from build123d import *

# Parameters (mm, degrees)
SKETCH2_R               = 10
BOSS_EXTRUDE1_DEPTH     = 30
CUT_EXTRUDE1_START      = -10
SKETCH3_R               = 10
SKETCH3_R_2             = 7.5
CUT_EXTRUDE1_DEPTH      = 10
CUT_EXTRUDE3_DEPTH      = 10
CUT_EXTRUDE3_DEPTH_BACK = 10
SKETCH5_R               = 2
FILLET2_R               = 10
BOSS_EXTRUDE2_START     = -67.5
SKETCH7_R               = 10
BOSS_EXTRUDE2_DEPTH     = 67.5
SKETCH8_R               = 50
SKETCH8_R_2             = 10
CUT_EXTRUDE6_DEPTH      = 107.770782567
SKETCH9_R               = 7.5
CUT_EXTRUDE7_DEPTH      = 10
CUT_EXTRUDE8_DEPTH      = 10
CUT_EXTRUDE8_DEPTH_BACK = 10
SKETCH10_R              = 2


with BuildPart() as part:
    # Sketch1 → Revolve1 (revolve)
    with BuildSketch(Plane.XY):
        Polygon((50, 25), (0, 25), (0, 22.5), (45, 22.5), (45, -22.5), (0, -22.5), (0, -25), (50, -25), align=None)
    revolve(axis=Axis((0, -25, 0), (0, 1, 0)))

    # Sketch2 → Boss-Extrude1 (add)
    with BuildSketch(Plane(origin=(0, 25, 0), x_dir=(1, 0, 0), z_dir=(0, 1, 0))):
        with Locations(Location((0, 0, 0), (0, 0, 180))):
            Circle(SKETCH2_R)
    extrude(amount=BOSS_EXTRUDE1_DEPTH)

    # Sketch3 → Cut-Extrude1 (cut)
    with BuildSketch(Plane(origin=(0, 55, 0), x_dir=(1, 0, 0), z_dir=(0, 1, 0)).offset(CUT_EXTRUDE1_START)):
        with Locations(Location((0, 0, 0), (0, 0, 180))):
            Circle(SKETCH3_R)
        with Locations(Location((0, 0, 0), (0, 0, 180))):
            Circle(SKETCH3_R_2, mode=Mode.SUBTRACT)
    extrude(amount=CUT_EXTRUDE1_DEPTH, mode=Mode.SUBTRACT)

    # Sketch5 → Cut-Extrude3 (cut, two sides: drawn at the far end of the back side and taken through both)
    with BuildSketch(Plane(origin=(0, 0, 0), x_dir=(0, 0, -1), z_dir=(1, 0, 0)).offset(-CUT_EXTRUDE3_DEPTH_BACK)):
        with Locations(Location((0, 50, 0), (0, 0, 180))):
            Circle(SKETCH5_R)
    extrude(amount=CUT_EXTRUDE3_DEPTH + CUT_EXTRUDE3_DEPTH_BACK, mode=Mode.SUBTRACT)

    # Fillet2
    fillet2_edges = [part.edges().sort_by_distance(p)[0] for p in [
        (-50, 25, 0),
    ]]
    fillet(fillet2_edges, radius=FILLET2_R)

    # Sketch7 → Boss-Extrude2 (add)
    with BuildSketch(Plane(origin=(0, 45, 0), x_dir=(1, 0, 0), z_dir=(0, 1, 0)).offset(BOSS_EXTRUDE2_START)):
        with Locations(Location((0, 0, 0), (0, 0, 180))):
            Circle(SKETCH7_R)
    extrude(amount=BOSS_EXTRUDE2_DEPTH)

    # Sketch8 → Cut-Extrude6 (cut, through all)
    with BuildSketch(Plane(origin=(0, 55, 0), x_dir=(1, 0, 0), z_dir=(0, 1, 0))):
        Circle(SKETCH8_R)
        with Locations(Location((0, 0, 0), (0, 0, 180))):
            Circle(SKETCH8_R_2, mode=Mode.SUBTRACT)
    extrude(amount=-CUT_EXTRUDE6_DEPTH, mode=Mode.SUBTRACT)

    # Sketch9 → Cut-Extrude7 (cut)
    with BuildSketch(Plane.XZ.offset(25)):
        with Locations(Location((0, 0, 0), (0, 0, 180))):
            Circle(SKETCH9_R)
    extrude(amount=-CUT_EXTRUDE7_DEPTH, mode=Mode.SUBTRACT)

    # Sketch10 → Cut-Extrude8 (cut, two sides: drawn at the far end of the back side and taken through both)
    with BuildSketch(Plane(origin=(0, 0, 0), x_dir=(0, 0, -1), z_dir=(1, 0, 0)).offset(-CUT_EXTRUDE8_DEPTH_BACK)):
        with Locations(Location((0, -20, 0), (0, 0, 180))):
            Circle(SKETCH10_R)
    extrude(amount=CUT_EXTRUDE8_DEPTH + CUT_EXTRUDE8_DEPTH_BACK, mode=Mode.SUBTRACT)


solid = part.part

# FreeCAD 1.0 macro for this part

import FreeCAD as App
import Part
import Sketcher

V = App.Vector
Q = App.Units.Quantity


def edges_at(feature, points):
    """Names of the edges that pass closest to the given points."""
    edges = feature.Shape.Edges
    near = lambda p: min(range(len(edges)), key=lambda i: edges[i].distToShape(Part.Vertex(*p))[0])
    return sorted({f"Edge{near(p) + 1}" for p in points})


def add_polygon(sketch, points):
    """Adds a closed chain of lines whose ends are joined by coincident constraints."""
    first, n = sketch.GeometryCount, len(points)
    for a, b in zip(points, points[1:] + points[:1]):
        sketch.addGeometry(Part.LineSegment(App.Vector(*a, 0), App.Vector(*b, 0)), False)
    for i in range(n):
        sketch.addConstraint(Sketcher.Constraint("Coincident", first + i, 2, first + (i + 1) % n, 1))

doc = App.newDocument("Part")
params = doc.addObject("Spreadsheet::Sheet", "Params")
for row, (alias, value) in enumerate([
    ("sketch1_width", "50 mm"),
    ("sketch1_width2", "45 mm"),
    ("revolution_angle", "360 deg"),
    ("sketch2_diameter", "20 mm"),
    ("pad1_length", "30 mm"),
    ("sketch3_diameter", "20 mm"),
    ("sketch3_diameter2", "15 mm"),
    ("pocket1_length", "10 mm"),
    ("sketch4_diameter", "4 mm"),
    ("fillet_radius", "10 mm"),
    ("sketch5_diameter", "20 mm"),
    ("pad2_length", "67.5 mm"),
    ("sketch6_diameter", "100 mm"),
    ("sketch6_diameter2", "20 mm"),
    ("sketch7_diameter", "15 mm"),
    ("pocket4_length", "10 mm"),
    ("sketch8_diameter", "4 mm"),
], start=1):
    params.set(f"A{row}", alias)
    params.set(f"B{row}", "=" + value)
    params.setAlias(f"B{row}", alias)

body = doc.addObject("PartDesign::Body", "Body")

# Sketch on XY plane
sketch1 = doc.addObject("Sketcher::SketchObject", "Sketch")
body.addObject(sketch1)
sketch1.AttachmentSupport = (doc.XY_Plane, [""])
sketch1.MapMode = "FlatFace"
add_polygon(sketch1, [(50, 25), (0, 25), (0, 22.5), (45, 22.5), (45, -22.5), (0, -22.5), (0, -25), (50, -25)])  # lines 0-7
sketch1.addConstraint([
    Sketcher.Constraint("Horizontal", 0),
    Sketcher.Constraint("Vertical", 1),
    Sketcher.Constraint("Horizontal", 2),
    Sketcher.Constraint("Vertical", 3),
    Sketcher.Constraint("Horizontal", 4),
    Sketcher.Constraint("Vertical", 5),
    Sketcher.Constraint("Horizontal", 6),
    Sketcher.Constraint("Vertical", 7),
    Sketcher.Constraint("Symmetric", 1, 2, 4, 2, -1, 1),
    Sketcher.Constraint("Symmetric", 0, 2, 5, 2, -1),
    Sketcher.Constraint("Equal", 4, 3),
    Sketcher.Constraint("Equal", 6, 7),
    Sketcher.Constraint("DistanceX", 0, 2, 0, 1, Q("50 mm")),
    Sketcher.Constraint("DistanceX", 2, 1, 2, 2, Q("45 mm")),
])
sketch1.setExpression("Constraints[20]", "Params.sketch1_width")
sketch1.setExpression("Constraints[21]", "Params.sketch1_width2")
revolution = doc.addObject("PartDesign::Revolution", "Revolution")
body.addObject(revolution)
revolution.Profile = sketch1
revolution.ReferenceAxis = (sketch1, ["V_Axis"])
revolution.setExpression("Angle", "Params.revolution_angle")

# Sketch on XZ plane
sketch2 = doc.addObject("Sketcher::SketchObject", "Sketch001")
body.addObject(sketch2)
sketch2.AttachmentSupport = (doc.XZ_Plane, [""])
sketch2.MapMode = "FlatFace"
sketch2.AttachmentOffset = App.Placement(V(0, 0, -25), App.Rotation())
sketch2.addGeometry(Part.Circle(V(0, 0, 0), V(0, 0, 1), 10), False)
sketch2.addConstraint([
    Sketcher.Constraint("Coincident", 0, 3, -1, 1),
    Sketcher.Constraint("Diameter", 0, Q("20 mm")),
])
sketch2.setExpression("Constraints[1]", "Params.sketch2_diameter")
pad1 = doc.addObject("PartDesign::Pad", "Pad")
body.addObject(pad1)
pad1.Profile = sketch2
pad1.setExpression("Length", "Params.pad1_length")
pad1.Reversed = True

# Sketch on XZ plane
sketch3 = doc.addObject("Sketcher::SketchObject", "Sketch002")
body.addObject(sketch3)
sketch3.AttachmentSupport = (doc.XZ_Plane, [""])
sketch3.MapMode = "FlatFace"
sketch3.AttachmentOffset = App.Placement(V(0, 0, -45), App.Rotation())
sketch3.addGeometry([
    Part.Circle(V(0, 0, 0), V(0, 0, 1), 10),
    Part.Circle(V(0, 0, 0), V(0, 0, 1), 8),
], False)
sketch3.addConstraint([
    Sketcher.Constraint("Coincident", 0, 3, -1, 1),
    Sketcher.Constraint("Coincident", 1, 3, -1, 1),
    Sketcher.Constraint("Diameter", 0, Q("20 mm")),
    Sketcher.Constraint("Diameter", 1, Q("15 mm")),
])
sketch3.setExpression("Constraints[2]", "Params.sketch3_diameter")
sketch3.setExpression("Constraints[3]", "Params.sketch3_diameter2")
pocket1 = doc.addObject("PartDesign::Pocket", "Pocket")
body.addObject(pocket1)
pocket1.Profile = sketch3
pocket1.setExpression("Length", "Params.pocket1_length")

# Sketch on YZ plane
sketch4 = doc.addObject("Sketcher::SketchObject", "Sketch003")
body.addObject(sketch4)
sketch4.AttachmentSupport = (doc.YZ_Plane, [""])
sketch4.MapMode = "FlatFace"
sketch4.addGeometry(Part.Circle(V(50, 0, 0), V(0, 0, 1), 2), False)
sketch4.addConstraint([
    Sketcher.Constraint("PointOnObject", 0, 3, -1),
    Sketcher.Constraint("Diameter", 0, Q("4 mm")),
    Sketcher.Constraint("DistanceX", -1, 1, 0, 3, Q("50 mm")),
])
sketch4.setExpression("Constraints[1]", "Params.sketch4_diameter")
pocket2 = doc.addObject("PartDesign::Pocket", "Pocket001")
body.addObject(pocket2)
pocket2.Profile = sketch4
pocket2.Type = "ThroughAll"
pocket2.Midplane = True
doc.recompute()

fillet = doc.addObject("PartDesign::Fillet", "Fillet")
body.addObject(fillet)
fillet.Base = (pocket2, edges_at(pocket2, [(-50, 25, 0)]))
fillet.setExpression("Radius", "Params.fillet_radius")

# Sketch on XZ plane
sketch5 = doc.addObject("Sketcher::SketchObject", "Sketch004")
body.addObject(sketch5)
sketch5.AttachmentSupport = (doc.XZ_Plane, [""])
sketch5.MapMode = "FlatFace"
sketch5.AttachmentOffset = App.Placement(V(0, 0, 22.5), App.Rotation())
sketch5.addGeometry(Part.Circle(V(0, 0, 0), V(0, 0, 1), 10), False)
sketch5.addConstraint([
    Sketcher.Constraint("Coincident", 0, 3, -1, 1),
    Sketcher.Constraint("Diameter", 0, Q("20 mm")),
])
sketch5.setExpression("Constraints[1]", "Params.sketch5_diameter")
pad2 = doc.addObject("PartDesign::Pad", "Pad001")
body.addObject(pad2)
pad2.Profile = sketch5
pad2.setExpression("Length", "Params.pad2_length")
pad2.Reversed = True

# Sketch on XZ plane
sketch6 = doc.addObject("Sketcher::SketchObject", "Sketch005")
body.addObject(sketch6)
sketch6.AttachmentSupport = (doc.XZ_Plane, [""])
sketch6.MapMode = "FlatFace"
sketch6.AttachmentOffset = App.Placement(V(0, 0, -55), App.Rotation())
sketch6.addGeometry([
    Part.Circle(V(0, 0, 0), V(0, 0, 1), 50),
    Part.Circle(V(0, 0, 0), V(0, 0, 1), 10),
], False)
sketch6.addConstraint([
    Sketcher.Constraint("Coincident", 0, 3, -1, 1),
    Sketcher.Constraint("Coincident", 1, 3, -1, 1),
    Sketcher.Constraint("Diameter", 0, Q("100 mm")),
    Sketcher.Constraint("Diameter", 1, Q("20 mm")),
])
sketch6.setExpression("Constraints[2]", "Params.sketch6_diameter")
sketch6.setExpression("Constraints[3]", "Params.sketch6_diameter2")
pocket3 = doc.addObject("PartDesign::Pocket", "Pocket002")
body.addObject(pocket3)
pocket3.Profile = sketch6
pocket3.Type = "ThroughAll"
pocket3.Reversed = True

# Sketch on XZ plane
sketch7 = doc.addObject("Sketcher::SketchObject", "Sketch006")
body.addObject(sketch7)
sketch7.AttachmentSupport = (doc.XZ_Plane, [""])
sketch7.MapMode = "FlatFace"
sketch7.AttachmentOffset = App.Placement(V(0, 0, 25), App.Rotation())
sketch7.addGeometry(Part.Circle(V(0, 0, 0), V(0, 0, 1), 8), False)
sketch7.addConstraint([
    Sketcher.Constraint("Coincident", 0, 3, -1, 1),
    Sketcher.Constraint("Diameter", 0, Q("15 mm")),
])
sketch7.setExpression("Constraints[1]", "Params.sketch7_diameter")
pocket4 = doc.addObject("PartDesign::Pocket", "Pocket003")
body.addObject(pocket4)
pocket4.Profile = sketch7
pocket4.setExpression("Length", "Params.pocket4_length")

# Sketch on YZ plane
sketch8 = doc.addObject("Sketcher::SketchObject", "Sketch007")
body.addObject(sketch8)
sketch8.AttachmentSupport = (doc.YZ_Plane, [""])
sketch8.MapMode = "FlatFace"
sketch8.addGeometry(Part.Circle(V(-20, 0, 0), V(0, 0, 1), 2), False)
sketch8.addConstraint([
    Sketcher.Constraint("PointOnObject", 0, 3, -1),
    Sketcher.Constraint("Diameter", 0, Q("4 mm")),
    Sketcher.Constraint("DistanceX", 0, 3, -1, 1, Q("20 mm")),
])
sketch8.setExpression("Constraints[1]", "Params.sketch8_diameter")
pocket5 = doc.addObject("PartDesign::Pocket", "Pocket004")
body.addObject(pocket5)
pocket5.Profile = sketch8
pocket5.Type = "ThroughAll"
pocket5.Midplane = True

doc.recompute()
